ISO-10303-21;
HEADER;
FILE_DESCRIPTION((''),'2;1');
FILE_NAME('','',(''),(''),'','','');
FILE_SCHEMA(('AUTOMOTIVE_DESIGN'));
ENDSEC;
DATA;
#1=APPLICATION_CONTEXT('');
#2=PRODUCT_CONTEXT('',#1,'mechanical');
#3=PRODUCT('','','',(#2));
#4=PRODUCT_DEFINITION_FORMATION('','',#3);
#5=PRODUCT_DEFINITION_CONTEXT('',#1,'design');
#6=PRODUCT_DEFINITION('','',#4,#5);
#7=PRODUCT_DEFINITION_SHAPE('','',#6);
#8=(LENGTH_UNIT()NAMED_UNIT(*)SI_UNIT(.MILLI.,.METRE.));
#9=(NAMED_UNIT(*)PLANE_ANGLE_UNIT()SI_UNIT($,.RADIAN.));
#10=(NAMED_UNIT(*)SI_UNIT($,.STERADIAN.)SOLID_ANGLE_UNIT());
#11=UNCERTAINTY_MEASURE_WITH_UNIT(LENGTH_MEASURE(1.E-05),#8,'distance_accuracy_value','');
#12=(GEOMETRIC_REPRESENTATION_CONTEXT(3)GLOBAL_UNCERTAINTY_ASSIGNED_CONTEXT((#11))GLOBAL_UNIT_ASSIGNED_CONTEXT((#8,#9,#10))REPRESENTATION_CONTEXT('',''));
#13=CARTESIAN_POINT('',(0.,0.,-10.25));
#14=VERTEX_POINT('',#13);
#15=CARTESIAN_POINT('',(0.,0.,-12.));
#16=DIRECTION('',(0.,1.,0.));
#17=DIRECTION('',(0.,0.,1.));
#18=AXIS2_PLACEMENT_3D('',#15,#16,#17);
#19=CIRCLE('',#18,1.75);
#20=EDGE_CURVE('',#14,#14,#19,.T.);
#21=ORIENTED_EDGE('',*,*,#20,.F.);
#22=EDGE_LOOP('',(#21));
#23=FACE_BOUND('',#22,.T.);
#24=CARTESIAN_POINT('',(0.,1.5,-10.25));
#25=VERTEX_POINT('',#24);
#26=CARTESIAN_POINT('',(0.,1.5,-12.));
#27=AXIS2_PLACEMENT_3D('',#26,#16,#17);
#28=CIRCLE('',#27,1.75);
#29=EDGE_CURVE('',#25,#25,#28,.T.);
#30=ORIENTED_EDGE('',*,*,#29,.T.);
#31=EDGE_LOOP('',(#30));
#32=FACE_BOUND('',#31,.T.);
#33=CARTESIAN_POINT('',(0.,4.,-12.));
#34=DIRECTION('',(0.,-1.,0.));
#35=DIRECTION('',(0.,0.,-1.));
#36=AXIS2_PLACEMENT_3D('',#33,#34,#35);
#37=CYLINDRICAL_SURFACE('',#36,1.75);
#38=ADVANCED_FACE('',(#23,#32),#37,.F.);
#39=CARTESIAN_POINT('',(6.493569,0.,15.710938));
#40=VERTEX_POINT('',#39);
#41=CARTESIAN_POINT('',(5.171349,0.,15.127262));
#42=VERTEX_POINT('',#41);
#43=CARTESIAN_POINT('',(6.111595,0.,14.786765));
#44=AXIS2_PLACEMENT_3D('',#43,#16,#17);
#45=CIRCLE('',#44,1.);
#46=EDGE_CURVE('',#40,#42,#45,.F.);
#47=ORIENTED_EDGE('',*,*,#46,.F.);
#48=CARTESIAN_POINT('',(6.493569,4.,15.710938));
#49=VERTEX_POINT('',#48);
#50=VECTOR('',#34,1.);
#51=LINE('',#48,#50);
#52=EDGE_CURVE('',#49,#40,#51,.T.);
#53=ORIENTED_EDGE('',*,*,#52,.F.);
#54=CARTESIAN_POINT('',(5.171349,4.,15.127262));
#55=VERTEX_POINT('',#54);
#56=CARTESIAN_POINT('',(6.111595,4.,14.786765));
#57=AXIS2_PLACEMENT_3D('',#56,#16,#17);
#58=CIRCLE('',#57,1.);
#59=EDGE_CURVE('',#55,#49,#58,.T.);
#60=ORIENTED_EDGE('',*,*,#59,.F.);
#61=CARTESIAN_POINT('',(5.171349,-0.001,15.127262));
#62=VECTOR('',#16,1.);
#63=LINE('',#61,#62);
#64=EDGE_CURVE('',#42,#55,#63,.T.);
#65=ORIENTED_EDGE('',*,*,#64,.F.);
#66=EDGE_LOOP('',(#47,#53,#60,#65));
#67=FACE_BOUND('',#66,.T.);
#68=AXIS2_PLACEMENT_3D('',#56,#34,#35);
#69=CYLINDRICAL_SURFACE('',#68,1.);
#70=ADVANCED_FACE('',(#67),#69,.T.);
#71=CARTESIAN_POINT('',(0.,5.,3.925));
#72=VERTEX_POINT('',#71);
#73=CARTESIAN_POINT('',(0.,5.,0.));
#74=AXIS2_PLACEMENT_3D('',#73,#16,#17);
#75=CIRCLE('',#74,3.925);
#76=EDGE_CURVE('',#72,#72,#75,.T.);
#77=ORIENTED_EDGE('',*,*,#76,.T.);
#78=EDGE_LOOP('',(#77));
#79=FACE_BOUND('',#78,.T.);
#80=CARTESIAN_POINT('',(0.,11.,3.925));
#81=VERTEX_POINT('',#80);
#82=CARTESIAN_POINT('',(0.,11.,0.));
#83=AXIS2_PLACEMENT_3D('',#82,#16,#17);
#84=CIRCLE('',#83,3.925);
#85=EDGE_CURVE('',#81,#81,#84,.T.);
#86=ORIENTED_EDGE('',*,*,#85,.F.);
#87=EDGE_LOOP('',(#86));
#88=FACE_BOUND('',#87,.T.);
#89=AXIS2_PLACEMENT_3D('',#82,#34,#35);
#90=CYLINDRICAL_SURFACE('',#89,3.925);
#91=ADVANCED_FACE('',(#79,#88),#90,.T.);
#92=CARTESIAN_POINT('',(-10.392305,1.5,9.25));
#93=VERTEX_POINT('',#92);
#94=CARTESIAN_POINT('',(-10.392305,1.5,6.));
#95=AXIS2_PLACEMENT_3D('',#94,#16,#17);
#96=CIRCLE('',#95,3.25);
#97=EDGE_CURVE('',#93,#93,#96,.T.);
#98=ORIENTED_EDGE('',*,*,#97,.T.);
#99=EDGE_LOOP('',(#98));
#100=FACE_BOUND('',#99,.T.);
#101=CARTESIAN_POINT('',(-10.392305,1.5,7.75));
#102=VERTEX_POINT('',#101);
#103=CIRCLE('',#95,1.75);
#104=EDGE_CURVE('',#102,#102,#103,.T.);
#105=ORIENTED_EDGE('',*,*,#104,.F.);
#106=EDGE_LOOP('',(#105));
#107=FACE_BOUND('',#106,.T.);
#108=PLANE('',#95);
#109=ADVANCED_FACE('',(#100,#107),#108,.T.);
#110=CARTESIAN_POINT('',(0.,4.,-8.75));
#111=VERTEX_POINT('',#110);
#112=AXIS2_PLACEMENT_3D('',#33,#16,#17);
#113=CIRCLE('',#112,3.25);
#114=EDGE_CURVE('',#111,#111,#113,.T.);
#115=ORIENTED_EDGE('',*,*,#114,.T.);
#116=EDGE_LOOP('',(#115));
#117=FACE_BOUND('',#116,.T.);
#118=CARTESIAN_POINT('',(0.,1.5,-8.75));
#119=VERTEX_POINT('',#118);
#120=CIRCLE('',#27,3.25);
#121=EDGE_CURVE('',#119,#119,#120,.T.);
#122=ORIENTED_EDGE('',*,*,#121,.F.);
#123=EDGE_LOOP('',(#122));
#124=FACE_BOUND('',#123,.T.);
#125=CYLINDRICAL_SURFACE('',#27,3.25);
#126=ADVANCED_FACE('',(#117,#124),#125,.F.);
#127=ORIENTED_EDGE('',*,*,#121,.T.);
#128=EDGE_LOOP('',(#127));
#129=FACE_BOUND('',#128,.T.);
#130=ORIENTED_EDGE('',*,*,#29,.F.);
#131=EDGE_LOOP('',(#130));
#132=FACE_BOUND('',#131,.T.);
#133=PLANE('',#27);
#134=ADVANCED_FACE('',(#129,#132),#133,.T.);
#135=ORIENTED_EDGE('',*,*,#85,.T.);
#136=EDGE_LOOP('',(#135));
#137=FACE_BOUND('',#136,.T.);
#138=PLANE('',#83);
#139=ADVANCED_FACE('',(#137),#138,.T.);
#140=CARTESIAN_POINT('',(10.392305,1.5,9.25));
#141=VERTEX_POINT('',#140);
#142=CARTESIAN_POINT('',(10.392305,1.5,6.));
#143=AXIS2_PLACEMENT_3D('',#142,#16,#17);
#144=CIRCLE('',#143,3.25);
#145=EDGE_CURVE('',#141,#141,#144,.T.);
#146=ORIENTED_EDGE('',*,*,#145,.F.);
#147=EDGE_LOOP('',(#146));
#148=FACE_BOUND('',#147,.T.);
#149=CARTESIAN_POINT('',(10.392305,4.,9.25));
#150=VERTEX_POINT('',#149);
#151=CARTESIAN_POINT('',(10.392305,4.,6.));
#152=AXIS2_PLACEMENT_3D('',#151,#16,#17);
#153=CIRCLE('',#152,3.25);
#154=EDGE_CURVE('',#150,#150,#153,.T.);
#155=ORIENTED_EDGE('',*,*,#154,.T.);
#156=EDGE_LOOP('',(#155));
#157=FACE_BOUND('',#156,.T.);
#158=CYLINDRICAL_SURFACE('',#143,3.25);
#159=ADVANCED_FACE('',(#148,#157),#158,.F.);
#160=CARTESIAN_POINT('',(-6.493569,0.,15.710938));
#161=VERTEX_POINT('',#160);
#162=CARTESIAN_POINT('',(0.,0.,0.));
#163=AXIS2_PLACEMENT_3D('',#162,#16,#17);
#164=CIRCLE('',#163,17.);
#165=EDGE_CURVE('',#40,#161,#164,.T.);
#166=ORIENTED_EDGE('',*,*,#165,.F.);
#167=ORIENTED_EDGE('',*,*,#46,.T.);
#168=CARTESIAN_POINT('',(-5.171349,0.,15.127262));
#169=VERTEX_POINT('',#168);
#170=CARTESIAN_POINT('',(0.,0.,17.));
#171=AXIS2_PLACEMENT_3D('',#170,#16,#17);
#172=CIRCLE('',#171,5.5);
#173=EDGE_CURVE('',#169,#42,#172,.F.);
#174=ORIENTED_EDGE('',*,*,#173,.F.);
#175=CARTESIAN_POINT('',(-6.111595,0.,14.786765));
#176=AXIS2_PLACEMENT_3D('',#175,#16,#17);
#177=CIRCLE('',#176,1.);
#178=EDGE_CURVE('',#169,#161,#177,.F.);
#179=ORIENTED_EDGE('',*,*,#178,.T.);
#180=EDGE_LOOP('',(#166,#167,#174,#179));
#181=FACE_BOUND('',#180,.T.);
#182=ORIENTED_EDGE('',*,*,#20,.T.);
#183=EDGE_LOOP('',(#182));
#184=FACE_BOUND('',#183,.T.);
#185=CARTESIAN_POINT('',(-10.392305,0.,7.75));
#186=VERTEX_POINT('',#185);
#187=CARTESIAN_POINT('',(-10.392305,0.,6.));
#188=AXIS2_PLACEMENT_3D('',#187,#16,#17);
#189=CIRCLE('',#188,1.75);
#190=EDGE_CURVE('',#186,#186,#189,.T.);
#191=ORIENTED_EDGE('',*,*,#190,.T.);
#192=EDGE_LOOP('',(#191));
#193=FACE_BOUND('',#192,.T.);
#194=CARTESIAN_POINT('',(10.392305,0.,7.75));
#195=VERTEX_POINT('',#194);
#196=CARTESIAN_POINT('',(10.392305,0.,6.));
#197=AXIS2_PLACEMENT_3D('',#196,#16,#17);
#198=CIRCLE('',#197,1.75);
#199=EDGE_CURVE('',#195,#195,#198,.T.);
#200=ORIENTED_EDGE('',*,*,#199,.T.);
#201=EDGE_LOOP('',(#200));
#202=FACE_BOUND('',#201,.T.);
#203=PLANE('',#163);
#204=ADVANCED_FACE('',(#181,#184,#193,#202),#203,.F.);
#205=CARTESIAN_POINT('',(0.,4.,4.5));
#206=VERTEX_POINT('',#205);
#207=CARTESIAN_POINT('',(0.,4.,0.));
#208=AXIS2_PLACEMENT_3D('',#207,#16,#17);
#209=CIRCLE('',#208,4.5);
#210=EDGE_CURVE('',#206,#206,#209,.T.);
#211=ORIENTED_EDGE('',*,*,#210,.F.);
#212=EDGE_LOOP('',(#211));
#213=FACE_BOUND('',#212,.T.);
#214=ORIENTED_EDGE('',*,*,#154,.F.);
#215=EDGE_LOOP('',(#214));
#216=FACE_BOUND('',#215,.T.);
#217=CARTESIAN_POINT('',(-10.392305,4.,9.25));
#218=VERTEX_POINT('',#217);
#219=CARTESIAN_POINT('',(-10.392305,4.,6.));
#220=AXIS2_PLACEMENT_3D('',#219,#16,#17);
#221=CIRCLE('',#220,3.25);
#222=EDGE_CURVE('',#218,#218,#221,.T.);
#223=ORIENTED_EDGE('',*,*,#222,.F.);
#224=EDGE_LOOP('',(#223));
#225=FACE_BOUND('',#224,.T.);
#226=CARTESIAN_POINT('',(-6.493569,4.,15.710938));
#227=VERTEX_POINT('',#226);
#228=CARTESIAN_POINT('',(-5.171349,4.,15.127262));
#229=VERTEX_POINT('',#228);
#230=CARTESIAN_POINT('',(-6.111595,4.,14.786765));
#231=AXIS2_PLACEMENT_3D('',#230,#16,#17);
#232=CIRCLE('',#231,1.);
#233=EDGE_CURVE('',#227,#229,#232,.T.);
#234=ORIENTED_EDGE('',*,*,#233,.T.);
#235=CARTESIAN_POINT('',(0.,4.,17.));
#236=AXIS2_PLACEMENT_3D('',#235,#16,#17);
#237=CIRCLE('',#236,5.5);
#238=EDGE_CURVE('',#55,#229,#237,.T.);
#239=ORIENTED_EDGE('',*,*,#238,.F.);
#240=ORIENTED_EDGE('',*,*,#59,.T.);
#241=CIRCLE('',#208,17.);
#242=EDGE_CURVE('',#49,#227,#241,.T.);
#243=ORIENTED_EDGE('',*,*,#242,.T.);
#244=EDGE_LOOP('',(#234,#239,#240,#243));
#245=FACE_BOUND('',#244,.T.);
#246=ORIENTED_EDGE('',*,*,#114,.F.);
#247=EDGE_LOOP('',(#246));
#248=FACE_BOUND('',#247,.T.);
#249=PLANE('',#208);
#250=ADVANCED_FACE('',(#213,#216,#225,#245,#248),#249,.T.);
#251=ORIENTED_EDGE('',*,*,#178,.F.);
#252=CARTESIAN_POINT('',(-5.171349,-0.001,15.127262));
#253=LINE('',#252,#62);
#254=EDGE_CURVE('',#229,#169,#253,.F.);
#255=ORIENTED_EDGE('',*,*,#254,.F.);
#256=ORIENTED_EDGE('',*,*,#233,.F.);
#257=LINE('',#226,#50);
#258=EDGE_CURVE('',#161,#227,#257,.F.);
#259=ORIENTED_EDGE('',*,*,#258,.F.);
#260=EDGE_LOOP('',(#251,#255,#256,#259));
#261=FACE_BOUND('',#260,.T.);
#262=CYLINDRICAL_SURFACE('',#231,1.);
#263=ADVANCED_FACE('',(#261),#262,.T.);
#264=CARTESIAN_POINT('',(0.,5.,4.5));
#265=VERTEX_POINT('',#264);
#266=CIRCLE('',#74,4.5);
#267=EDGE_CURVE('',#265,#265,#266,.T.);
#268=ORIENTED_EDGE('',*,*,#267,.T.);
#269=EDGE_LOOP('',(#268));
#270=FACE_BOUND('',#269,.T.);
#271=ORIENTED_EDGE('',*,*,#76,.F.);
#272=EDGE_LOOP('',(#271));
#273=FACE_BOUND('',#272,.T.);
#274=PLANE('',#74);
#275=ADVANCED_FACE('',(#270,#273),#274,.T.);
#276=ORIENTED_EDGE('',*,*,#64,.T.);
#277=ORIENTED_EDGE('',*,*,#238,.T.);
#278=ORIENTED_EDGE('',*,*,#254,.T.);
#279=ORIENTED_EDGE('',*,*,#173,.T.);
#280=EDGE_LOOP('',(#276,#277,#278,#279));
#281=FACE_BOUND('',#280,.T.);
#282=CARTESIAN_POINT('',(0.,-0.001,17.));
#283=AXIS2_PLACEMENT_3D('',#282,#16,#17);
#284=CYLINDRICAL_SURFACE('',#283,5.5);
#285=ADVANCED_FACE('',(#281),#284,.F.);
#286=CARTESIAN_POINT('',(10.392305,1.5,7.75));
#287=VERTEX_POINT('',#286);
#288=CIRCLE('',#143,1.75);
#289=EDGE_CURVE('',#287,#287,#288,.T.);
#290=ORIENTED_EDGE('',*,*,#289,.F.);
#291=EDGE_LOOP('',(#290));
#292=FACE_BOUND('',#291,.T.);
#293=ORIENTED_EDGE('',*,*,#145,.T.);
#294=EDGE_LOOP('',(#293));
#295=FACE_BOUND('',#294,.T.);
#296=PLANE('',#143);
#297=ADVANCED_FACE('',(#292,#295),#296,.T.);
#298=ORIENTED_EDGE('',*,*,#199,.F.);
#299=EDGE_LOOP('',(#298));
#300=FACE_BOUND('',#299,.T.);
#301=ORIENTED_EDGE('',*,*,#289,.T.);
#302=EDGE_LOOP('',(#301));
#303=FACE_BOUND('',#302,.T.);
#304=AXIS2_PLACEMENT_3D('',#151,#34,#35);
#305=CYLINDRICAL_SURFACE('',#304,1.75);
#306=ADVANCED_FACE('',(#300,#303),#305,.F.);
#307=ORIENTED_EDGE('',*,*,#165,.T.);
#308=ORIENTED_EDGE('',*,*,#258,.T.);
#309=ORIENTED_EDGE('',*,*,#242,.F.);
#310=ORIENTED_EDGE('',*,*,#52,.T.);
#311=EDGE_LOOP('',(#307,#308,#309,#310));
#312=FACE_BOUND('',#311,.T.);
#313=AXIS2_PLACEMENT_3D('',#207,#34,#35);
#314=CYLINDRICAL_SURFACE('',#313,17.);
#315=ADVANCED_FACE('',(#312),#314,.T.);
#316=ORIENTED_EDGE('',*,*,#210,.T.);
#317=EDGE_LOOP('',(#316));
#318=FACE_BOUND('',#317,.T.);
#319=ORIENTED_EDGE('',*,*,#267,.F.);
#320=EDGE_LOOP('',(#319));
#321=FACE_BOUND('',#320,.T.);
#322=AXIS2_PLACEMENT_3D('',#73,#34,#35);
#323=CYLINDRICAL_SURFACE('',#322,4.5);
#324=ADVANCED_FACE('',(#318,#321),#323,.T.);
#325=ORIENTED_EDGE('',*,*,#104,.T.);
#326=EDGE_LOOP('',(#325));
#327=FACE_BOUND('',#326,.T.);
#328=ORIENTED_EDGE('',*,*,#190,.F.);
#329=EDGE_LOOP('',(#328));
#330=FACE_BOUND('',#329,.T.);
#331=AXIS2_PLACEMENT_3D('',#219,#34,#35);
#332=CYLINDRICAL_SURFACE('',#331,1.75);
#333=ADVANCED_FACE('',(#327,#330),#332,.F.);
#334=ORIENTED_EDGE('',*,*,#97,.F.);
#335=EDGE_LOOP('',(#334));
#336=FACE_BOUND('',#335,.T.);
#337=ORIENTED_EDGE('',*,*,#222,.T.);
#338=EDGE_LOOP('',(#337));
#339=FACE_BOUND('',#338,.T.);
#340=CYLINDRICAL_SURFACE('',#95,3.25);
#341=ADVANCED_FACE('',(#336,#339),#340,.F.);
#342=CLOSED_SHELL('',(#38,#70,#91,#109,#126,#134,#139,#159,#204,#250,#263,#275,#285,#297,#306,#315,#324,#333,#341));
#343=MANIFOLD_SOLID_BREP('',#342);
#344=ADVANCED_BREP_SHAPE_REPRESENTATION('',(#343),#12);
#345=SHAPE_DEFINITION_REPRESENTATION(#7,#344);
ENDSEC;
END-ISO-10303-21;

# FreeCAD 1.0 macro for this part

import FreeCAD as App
import Part
import Sketcher
from FreeCAD import Vector


def edges_at(feature, points):
    """Names of the edges that pass closest to the given points."""
    edges = feature.Shape.Edges
    near = lambda p: min(range(len(edges)), key=lambda i: edges[i].distToShape(Part.Vertex(*p))[0])
    return sorted({f"Edge{near(p) + 1}" for p in points})

doc = App.newDocument("Part")
body = doc.addObject("PartDesign::Body", "Body")

# Sketch on XZ plane
sketch1 = doc.addObject("Sketcher::SketchObject", "Sketch")
body.addObject(sketch1)
sketch1.AttachmentSupport = (doc.XZ_Plane, [""])
sketch1.MapMode = "FlatFace"
sketch1.addGeometry(Part.Circle(Vector(0, 0, 0), Vector(0, 0, 1), 17), False)
sketch1.addGeometry(Part.Circle(Vector(0, -12, 0), Vector(0, 0, 1), 1.8), False)
sketch1.addGeometry(Part.Circle(Vector(-10.4, 6, 0), Vector(0, 0, 1), 1.8), False)
sketch1.addGeometry(Part.Circle(Vector(10.4, 6, 0), Vector(0, 0, 1), 1.8), False)
sketch1.addConstraint(Sketcher.Constraint("Coincident", 0, 3, -1, 1))
sketch1.addConstraint(Sketcher.Constraint("Equal", 1, 2))
sketch1.addConstraint(Sketcher.Constraint("Equal", 2, 3))
sketch1.addConstraint(Sketcher.Constraint("Symmetric", 2, 3, 3, 3, -2))
sketch1.addConstraint(Sketcher.Constraint("PointOnObject", 1, 3, -2))
sketch1.addConstraint(Sketcher.Constraint("Diameter", 0, 34.0))
sketch1.addConstraint(Sketcher.Constraint("Diameter", 1, 3.5))
sketch1.addConstraint(Sketcher.Constraint("DistanceY", 1, 3, -1, 1, 12.0))
sketch1.addConstraint(Sketcher.Constraint("DistanceY", -1, 1, 2, 3, 6.0))
sketch1.addConstraint(Sketcher.Constraint("DistanceX", 2, 3, 3, 3, 20.78461))
pad1 = doc.addObject("PartDesign::Pad", "Pad")
body.addObject(pad1)
pad1.Profile = sketch1
pad1.Length = 4
pad1.Reversed = True

# Sketch on XZ plane
sketch2 = doc.addObject("Sketcher::SketchObject", "Sketch001")
body.addObject(sketch2)
sketch2.AttachmentSupport = (doc.XZ_Plane, [""])
sketch2.MapMode = "FlatFace"
sketch2.AttachmentOffset = App.Placement(Vector(0, 0, -4), App.Rotation())
sketch2.addGeometry(Part.Circle(Vector(0, -12, 0), Vector(0, 0, 1), 3.2), False)
sketch2.addGeometry(Part.Circle(Vector(10.4, 6, 0), Vector(0, 0, 1), 3.2), False)
sketch2.addGeometry(Part.Circle(Vector(-10.4, 6, 0), Vector(0, 0, 1), 3.2), False)
sketch2.addConstraint(Sketcher.Constraint("Equal", 0, 1))
sketch2.addConstraint(Sketcher.Constraint("Equal", 1, 2))
sketch2.addConstraint(Sketcher.Constraint("Symmetric", 1, 3, 2, 3, -2))
sketch2.addConstraint(Sketcher.Constraint("PointOnObject", 0, 3, -2))
sketch2.addConstraint(Sketcher.Constraint("Diameter", 0, 6.5))
sketch2.addConstraint(Sketcher.Constraint("DistanceY", 0, 3, -1, 1, 12.0))
sketch2.addConstraint(Sketcher.Constraint("DistanceY", -1, 1, 1, 3, 6.0))
sketch2.addConstraint(Sketcher.Constraint("DistanceX", 2, 3, 1, 3, 20.78461))
pocket1 = doc.addObject("PartDesign::Pocket", "Pocket")
body.addObject(pocket1)
pocket1.Profile = sketch2
pocket1.Length = 2.5
pocket1.Reversed = True

# Sketch on XZ plane
sketch3 = doc.addObject("Sketcher::SketchObject", "Sketch002")
body.addObject(sketch3)
sketch3.AttachmentSupport = (doc.XZ_Plane, [""])
sketch3.MapMode = "FlatFace"
sketch3.AttachmentOffset = App.Placement(Vector(0, 0, -4), App.Rotation())
sketch3.addGeometry(Part.Circle(Vector(0, 0, 0), Vector(0, 0, 1), 4.5), False)
sketch3.addConstraint(Sketcher.Constraint("Coincident", 0, 3, -1, 1))
sketch3.addConstraint(Sketcher.Constraint("Diameter", 0, 9.0))
pad2 = doc.addObject("PartDesign::Pad", "Pad001")
body.addObject(pad2)
pad2.Profile = sketch3
pad2.Length = 1
pad2.Reversed = True

# Sketch on XZ plane
sketch4 = doc.addObject("Sketcher::SketchObject", "Sketch003")
body.addObject(sketch4)
sketch4.AttachmentSupport = (doc.XZ_Plane, [""])
sketch4.MapMode = "FlatFace"
sketch4.AttachmentOffset = App.Placement(Vector(0, 0, -5), App.Rotation())
sketch4.addGeometry(Part.Circle(Vector(0, 0, 0), Vector(0, 0, 1), 3.9), False)
sketch4.addConstraint(Sketcher.Constraint("Coincident", 0, 3, -1, 1))
sketch4.addConstraint(Sketcher.Constraint("Diameter", 0, 7.85))
pad3 = doc.addObject("PartDesign::Pad", "Pad002")
body.addObject(pad3)
pad3.Profile = sketch4
pad3.Length = 6
pad3.Reversed = True

# Sketch on XZ plane
sketch5 = doc.addObject("Sketcher::SketchObject", "Sketch004")
body.addObject(sketch5)
sketch5.AttachmentSupport = (doc.XZ_Plane, [""])
sketch5.MapMode = "FlatFace"
sketch5.AttachmentOffset = App.Placement(Vector(0, 0, -4), App.Rotation())
sketch5.addGeometry(Part.Circle(Vector(0, 17, 0), Vector(0, 0, 1), 6), False)
sketch5.addConstraint(Sketcher.Constraint("PointOnObject", 0, 3, -2))
sketch5.addConstraint(Sketcher.Constraint("Diameter", 0, 11.0))
sketch5.addConstraint(Sketcher.Constraint("DistanceY", -1, 1, 0, 3, 17.0))
pocket2 = doc.addObject("PartDesign::Pocket", "Pocket001")
body.addObject(pocket2)
pocket2.Profile = sketch5
pocket2.Type = "UpToFirst"
pocket2.Reversed = True
doc.recompute()

fillet = doc.addObject("PartDesign::Fillet", "Fillet")
body.addObject(fillet)
fillet.Base = (pocket2, edges_at(pocket2, [(-5.428, 2, 16.11), (5.428, 2, 16.11)]))
fillet.Radius = 1

doc.recompute()
